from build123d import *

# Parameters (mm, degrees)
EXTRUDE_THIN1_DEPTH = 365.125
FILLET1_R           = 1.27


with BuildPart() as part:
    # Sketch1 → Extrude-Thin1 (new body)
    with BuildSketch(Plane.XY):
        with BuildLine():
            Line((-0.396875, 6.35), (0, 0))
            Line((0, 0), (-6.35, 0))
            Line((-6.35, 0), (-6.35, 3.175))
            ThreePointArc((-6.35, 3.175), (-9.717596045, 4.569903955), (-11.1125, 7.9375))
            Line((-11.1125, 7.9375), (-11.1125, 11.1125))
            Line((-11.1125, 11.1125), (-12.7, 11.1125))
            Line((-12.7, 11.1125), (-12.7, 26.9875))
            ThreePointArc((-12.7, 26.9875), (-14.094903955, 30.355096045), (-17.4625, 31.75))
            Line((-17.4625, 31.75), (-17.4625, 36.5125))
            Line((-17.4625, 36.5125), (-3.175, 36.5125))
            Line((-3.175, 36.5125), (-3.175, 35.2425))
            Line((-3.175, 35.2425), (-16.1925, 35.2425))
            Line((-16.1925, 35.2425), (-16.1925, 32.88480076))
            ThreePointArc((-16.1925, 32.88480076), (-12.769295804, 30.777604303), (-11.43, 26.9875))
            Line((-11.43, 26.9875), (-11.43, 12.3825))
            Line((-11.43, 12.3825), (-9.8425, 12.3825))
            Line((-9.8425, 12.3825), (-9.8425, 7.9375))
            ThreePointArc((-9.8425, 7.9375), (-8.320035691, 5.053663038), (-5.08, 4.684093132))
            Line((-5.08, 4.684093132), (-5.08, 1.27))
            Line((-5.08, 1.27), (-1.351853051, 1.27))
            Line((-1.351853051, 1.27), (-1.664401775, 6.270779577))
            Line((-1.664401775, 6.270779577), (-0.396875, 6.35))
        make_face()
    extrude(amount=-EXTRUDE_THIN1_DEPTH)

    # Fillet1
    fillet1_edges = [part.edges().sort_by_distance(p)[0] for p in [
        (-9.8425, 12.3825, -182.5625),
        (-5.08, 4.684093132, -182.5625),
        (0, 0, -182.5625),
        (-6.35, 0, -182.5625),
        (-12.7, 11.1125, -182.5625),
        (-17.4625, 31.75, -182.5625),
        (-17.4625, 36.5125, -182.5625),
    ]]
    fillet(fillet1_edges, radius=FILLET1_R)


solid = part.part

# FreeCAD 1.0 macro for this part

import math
import FreeCAD as App
import Part
import Sketcher

V = App.Vector
Q = App.Units.Quantity


def edges_at(feature, points):
    """Names of the edges that pass closest to the given points."""
    edges = feature.Shape.Edges
    near = lambda p: min(range(len(edges)), key=lambda i: edges[i].distToShape(Part.Vertex(*p))[0])
    return sorted({f"Edge{near(p) + 1}" for p in points})

doc = App.newDocument("Part")
body = doc.addObject("PartDesign::Body", "Body")

# Sketch on XY plane
sketch1 = body.newObject("Sketcher::SketchObject", "Sketch")
sketch1.AttachmentSupport = (doc.getObject("XY_Plane"), [""])
sketch1.MapMode = "FlatFace"
sketch1.addGeometry([
    Part.LineSegment(V(0, 0, 0), V(-0.4, 6.3, 0)),  # 0
    Part.LineSegment(V(-0.4, 6.3, 0), V(-1.7, 6.3, 0)),  # 1
    Part.LineSegment(V(-1.7, 6.3, 0), V(-1.4, 1.3, 0)),  # 2
    Part.LineSegment(V(-1.4, 1.3, 0), V(-5.1, 1.3, 0)),  # 3
    Part.LineSegment(V(-5.1, 1.3, 0), V(-5.1, 4.7, 0)),  # 4
    Part.ArcOfCircle(Part.Circle(V(-6.3, 7.9, 0), V(0, 0, 1), 3.5), math.radians(-180), math.radians(-69)),  # 5
    Part.LineSegment(V(-9.8, 7.9, 0), V(-9.8, 12.4, 0)),  # 6
    Part.LineSegment(V(-9.8, 12.4, 0), V(-11.4, 12.4, 0)),  # 7
    Part.LineSegment(V(-11.4, 12.4, 0), V(-11.4, 27, 0)),  # 8
    Part.ArcOfCircle(Part.Circle(V(-17.5, 27, 0), V(0, 0, 1), 6), math.radians(0), math.radians(78)),  # 9
    Part.LineSegment(V(-16.2, 32.9, 0), V(-16.2, 35.2, 0)),  # 10
    Part.LineSegment(V(-16.2, 35.2, 0), V(-3.2, 35.2, 0)),  # 11
    Part.LineSegment(V(-3.2, 35.2, 0), V(-3.2, 36.5, 0)),  # 12
    Part.LineSegment(V(-3.2, 36.5, 0), V(-17.5, 36.5, 0)),  # 13
    Part.LineSegment(V(-17.5, 36.5, 0), V(-17.5, 31.8, 0)),  # 14
    Part.ArcOfCircle(Part.Circle(V(-17.5, 27, 0), V(0, 0, 1), 4.8), math.radians(0), math.radians(90)),  # 15
    Part.LineSegment(V(-12.7, 27, 0), V(-12.7, 11.1, 0)),  # 16
    Part.LineSegment(V(-12.7, 11.1, 0), V(-11.1, 11.1, 0)),  # 17
    Part.LineSegment(V(-11.1, 11.1, 0), V(-11.1, 7.9, 0)),  # 18
    Part.ArcOfCircle(Part.Circle(V(-6.3, 7.9, 0), V(0, 0, 1), 4.8), math.radians(-180), math.radians(-90)),  # 19
    Part.LineSegment(V(-6.3, 3.2, 0), V(-6.3, 0, 0)),  # 20
    Part.LineSegment(V(-6.3, 0, 0), V(0, 0, 0)),  # 21
], False)
sketch1.addConstraint([
    Sketcher.Constraint("Coincident", 0, 2, 1, 1),
    Sketcher.Constraint("Coincident", 1, 2, 2, 1),
    Sketcher.Constraint("Coincident", 2, 2, 3, 1),
    Sketcher.Constraint("Coincident", 3, 2, 4, 1),
    Sketcher.Constraint("Coincident", 4, 2, 5, 2),
    Sketcher.Constraint("Tangent", 5, 1, 6, 1),
    Sketcher.Constraint("Coincident", 6, 2, 7, 1),
    Sketcher.Constraint("Coincident", 7, 2, 8, 1),
    Sketcher.Constraint("Tangent", 8, 2, 9, 1),
    Sketcher.Constraint("Coincident", 9, 2, 10, 1),
    Sketcher.Constraint("Coincident", 10, 2, 11, 1),
    Sketcher.Constraint("Coincident", 11, 2, 12, 1),
    Sketcher.Constraint("Coincident", 12, 2, 13, 1),
    Sketcher.Constraint("Coincident", 13, 2, 14, 1),
    Sketcher.Constraint("Coincident", 14, 2, 15, 2),
    Sketcher.Constraint("Tangent", 15, 1, 16, 1),
    Sketcher.Constraint("Coincident", 16, 2, 17, 1),
    Sketcher.Constraint("Coincident", 17, 2, 18, 1),
    Sketcher.Constraint("Tangent", 18, 2, 19, 1),
    Sketcher.Constraint("Coincident", 19, 2, 20, 1),
    Sketcher.Constraint("Coincident", 20, 2, 21, 1),
    Sketcher.Constraint("Coincident", 21, 2, 0, 1),
    Sketcher.Constraint("Horizontal", 3),
    Sketcher.Constraint("Vertical", 4),
    Sketcher.Constraint("Vertical", 6),
    Sketcher.Constraint("Horizontal", 7),
    Sketcher.Constraint("Vertical", 8),
    Sketcher.Constraint("Vertical", 10),
    Sketcher.Constraint("Horizontal", 11),
    Sketcher.Constraint("Vertical", 12),
    Sketcher.Constraint("Horizontal", 13),
    Sketcher.Constraint("Vertical", 14),
    Sketcher.Constraint("Vertical", 16),
    Sketcher.Constraint("Horizontal", 17),
    Sketcher.Constraint("Vertical", 18),
    Sketcher.Constraint("Vertical", 20),
    Sketcher.Constraint("Horizontal", 21),
    Sketcher.Constraint("Coincident", 21, 2, -1, 1),
    Sketcher.Constraint("Coincident", 15, 3, 9, 3),
    Sketcher.Constraint("Coincident", 19, 3, 5, 3),
    Sketcher.Constraint("Equal", 15, 19),
    Sketcher.Constraint("Perpendicular", 0, 1),
    Sketcher.Constraint("Perpendicular", 1, 2),
    Sketcher.Constraint("Vertical", 15, 3, 13, 2),
    Sketcher.Constraint("Vertical", 5, 3, 19, 2),
    Sketcher.Constraint("Equal", 7, 17),
    Sketcher.Constraint("Equal", 18, 20),
    Sketcher.Constraint("Radius", 15, Q("0.1875 in")),
    Sketcher.Constraint("DistanceX", 21, 1, 21, 2, Q("0.25 in")),
    Sketcher.Constraint("DistanceY", 12, 1, 12, 2, Q("0.05 in")),
    Sketcher.Constraint("DistanceX", 3, 2, -1, 1, Q("0.2 in")),
    Sketcher.Constraint("DistanceX", 15, 1, -1, 1, Q("0.5 in")),
    Sketcher.Constraint("Radius", 5, Q("0.1375 in")),
    Sketcher.Constraint("DistanceY", 2, 2, 0, 2, Q("0.2 in")),
    Sketcher.Constraint("DistanceY", 7, 2, 10, 2, Q("0.9 in")),
    Sketcher.Constraint("Distance", 1, Q("0.05 in")),
    Sketcher.Constraint("DistanceX", 13, 2, 13, 1, Q("0.5625 in")),
    Sketcher.Constraint("DistanceY", 6, 1, 6, 2, Q("0.175 in")),
    Sketcher.Constraint("DistanceY", 8, 1, 8, 2, Q("0.575 in")),
    Sketcher.Constraint("DistanceY", 16, 2, 16, 1, Q("0.625 in")),
    Sketcher.Constraint("DistanceY", -1, 1, 0, 2, Q("0.25 in")),
    Sketcher.Constraint("DistanceX", 9, 3, 9, 2, Q("0.05 in")),
    Sketcher.Constraint("DistanceX", 0, 2, -1, 1, Q("0.015625 in")),
])
pad1 = body.newObject("PartDesign::Pad", "Pad")
pad1.Profile = sketch1
pad1.Length = Q("14.375 in")
pad1.Reversed = True
doc.recompute()

fillet = body.newObject("PartDesign::Fillet", "Fillet")
fillet.Base = (pad1, edges_at(pad1, [
    (-9.842, 12.383, -182.562),
    (-5.08, 4.684, -182.562),
    (0, 0, -182.562),
    (-6.35, 0, -182.562),
    (-12.7, 11.113, -182.562),
    (-17.462, 31.75, -182.562),
    (-17.462, 36.513, -182.562),
]))
fillet.Radius = Q("0.05 in")

doc.recompute()
